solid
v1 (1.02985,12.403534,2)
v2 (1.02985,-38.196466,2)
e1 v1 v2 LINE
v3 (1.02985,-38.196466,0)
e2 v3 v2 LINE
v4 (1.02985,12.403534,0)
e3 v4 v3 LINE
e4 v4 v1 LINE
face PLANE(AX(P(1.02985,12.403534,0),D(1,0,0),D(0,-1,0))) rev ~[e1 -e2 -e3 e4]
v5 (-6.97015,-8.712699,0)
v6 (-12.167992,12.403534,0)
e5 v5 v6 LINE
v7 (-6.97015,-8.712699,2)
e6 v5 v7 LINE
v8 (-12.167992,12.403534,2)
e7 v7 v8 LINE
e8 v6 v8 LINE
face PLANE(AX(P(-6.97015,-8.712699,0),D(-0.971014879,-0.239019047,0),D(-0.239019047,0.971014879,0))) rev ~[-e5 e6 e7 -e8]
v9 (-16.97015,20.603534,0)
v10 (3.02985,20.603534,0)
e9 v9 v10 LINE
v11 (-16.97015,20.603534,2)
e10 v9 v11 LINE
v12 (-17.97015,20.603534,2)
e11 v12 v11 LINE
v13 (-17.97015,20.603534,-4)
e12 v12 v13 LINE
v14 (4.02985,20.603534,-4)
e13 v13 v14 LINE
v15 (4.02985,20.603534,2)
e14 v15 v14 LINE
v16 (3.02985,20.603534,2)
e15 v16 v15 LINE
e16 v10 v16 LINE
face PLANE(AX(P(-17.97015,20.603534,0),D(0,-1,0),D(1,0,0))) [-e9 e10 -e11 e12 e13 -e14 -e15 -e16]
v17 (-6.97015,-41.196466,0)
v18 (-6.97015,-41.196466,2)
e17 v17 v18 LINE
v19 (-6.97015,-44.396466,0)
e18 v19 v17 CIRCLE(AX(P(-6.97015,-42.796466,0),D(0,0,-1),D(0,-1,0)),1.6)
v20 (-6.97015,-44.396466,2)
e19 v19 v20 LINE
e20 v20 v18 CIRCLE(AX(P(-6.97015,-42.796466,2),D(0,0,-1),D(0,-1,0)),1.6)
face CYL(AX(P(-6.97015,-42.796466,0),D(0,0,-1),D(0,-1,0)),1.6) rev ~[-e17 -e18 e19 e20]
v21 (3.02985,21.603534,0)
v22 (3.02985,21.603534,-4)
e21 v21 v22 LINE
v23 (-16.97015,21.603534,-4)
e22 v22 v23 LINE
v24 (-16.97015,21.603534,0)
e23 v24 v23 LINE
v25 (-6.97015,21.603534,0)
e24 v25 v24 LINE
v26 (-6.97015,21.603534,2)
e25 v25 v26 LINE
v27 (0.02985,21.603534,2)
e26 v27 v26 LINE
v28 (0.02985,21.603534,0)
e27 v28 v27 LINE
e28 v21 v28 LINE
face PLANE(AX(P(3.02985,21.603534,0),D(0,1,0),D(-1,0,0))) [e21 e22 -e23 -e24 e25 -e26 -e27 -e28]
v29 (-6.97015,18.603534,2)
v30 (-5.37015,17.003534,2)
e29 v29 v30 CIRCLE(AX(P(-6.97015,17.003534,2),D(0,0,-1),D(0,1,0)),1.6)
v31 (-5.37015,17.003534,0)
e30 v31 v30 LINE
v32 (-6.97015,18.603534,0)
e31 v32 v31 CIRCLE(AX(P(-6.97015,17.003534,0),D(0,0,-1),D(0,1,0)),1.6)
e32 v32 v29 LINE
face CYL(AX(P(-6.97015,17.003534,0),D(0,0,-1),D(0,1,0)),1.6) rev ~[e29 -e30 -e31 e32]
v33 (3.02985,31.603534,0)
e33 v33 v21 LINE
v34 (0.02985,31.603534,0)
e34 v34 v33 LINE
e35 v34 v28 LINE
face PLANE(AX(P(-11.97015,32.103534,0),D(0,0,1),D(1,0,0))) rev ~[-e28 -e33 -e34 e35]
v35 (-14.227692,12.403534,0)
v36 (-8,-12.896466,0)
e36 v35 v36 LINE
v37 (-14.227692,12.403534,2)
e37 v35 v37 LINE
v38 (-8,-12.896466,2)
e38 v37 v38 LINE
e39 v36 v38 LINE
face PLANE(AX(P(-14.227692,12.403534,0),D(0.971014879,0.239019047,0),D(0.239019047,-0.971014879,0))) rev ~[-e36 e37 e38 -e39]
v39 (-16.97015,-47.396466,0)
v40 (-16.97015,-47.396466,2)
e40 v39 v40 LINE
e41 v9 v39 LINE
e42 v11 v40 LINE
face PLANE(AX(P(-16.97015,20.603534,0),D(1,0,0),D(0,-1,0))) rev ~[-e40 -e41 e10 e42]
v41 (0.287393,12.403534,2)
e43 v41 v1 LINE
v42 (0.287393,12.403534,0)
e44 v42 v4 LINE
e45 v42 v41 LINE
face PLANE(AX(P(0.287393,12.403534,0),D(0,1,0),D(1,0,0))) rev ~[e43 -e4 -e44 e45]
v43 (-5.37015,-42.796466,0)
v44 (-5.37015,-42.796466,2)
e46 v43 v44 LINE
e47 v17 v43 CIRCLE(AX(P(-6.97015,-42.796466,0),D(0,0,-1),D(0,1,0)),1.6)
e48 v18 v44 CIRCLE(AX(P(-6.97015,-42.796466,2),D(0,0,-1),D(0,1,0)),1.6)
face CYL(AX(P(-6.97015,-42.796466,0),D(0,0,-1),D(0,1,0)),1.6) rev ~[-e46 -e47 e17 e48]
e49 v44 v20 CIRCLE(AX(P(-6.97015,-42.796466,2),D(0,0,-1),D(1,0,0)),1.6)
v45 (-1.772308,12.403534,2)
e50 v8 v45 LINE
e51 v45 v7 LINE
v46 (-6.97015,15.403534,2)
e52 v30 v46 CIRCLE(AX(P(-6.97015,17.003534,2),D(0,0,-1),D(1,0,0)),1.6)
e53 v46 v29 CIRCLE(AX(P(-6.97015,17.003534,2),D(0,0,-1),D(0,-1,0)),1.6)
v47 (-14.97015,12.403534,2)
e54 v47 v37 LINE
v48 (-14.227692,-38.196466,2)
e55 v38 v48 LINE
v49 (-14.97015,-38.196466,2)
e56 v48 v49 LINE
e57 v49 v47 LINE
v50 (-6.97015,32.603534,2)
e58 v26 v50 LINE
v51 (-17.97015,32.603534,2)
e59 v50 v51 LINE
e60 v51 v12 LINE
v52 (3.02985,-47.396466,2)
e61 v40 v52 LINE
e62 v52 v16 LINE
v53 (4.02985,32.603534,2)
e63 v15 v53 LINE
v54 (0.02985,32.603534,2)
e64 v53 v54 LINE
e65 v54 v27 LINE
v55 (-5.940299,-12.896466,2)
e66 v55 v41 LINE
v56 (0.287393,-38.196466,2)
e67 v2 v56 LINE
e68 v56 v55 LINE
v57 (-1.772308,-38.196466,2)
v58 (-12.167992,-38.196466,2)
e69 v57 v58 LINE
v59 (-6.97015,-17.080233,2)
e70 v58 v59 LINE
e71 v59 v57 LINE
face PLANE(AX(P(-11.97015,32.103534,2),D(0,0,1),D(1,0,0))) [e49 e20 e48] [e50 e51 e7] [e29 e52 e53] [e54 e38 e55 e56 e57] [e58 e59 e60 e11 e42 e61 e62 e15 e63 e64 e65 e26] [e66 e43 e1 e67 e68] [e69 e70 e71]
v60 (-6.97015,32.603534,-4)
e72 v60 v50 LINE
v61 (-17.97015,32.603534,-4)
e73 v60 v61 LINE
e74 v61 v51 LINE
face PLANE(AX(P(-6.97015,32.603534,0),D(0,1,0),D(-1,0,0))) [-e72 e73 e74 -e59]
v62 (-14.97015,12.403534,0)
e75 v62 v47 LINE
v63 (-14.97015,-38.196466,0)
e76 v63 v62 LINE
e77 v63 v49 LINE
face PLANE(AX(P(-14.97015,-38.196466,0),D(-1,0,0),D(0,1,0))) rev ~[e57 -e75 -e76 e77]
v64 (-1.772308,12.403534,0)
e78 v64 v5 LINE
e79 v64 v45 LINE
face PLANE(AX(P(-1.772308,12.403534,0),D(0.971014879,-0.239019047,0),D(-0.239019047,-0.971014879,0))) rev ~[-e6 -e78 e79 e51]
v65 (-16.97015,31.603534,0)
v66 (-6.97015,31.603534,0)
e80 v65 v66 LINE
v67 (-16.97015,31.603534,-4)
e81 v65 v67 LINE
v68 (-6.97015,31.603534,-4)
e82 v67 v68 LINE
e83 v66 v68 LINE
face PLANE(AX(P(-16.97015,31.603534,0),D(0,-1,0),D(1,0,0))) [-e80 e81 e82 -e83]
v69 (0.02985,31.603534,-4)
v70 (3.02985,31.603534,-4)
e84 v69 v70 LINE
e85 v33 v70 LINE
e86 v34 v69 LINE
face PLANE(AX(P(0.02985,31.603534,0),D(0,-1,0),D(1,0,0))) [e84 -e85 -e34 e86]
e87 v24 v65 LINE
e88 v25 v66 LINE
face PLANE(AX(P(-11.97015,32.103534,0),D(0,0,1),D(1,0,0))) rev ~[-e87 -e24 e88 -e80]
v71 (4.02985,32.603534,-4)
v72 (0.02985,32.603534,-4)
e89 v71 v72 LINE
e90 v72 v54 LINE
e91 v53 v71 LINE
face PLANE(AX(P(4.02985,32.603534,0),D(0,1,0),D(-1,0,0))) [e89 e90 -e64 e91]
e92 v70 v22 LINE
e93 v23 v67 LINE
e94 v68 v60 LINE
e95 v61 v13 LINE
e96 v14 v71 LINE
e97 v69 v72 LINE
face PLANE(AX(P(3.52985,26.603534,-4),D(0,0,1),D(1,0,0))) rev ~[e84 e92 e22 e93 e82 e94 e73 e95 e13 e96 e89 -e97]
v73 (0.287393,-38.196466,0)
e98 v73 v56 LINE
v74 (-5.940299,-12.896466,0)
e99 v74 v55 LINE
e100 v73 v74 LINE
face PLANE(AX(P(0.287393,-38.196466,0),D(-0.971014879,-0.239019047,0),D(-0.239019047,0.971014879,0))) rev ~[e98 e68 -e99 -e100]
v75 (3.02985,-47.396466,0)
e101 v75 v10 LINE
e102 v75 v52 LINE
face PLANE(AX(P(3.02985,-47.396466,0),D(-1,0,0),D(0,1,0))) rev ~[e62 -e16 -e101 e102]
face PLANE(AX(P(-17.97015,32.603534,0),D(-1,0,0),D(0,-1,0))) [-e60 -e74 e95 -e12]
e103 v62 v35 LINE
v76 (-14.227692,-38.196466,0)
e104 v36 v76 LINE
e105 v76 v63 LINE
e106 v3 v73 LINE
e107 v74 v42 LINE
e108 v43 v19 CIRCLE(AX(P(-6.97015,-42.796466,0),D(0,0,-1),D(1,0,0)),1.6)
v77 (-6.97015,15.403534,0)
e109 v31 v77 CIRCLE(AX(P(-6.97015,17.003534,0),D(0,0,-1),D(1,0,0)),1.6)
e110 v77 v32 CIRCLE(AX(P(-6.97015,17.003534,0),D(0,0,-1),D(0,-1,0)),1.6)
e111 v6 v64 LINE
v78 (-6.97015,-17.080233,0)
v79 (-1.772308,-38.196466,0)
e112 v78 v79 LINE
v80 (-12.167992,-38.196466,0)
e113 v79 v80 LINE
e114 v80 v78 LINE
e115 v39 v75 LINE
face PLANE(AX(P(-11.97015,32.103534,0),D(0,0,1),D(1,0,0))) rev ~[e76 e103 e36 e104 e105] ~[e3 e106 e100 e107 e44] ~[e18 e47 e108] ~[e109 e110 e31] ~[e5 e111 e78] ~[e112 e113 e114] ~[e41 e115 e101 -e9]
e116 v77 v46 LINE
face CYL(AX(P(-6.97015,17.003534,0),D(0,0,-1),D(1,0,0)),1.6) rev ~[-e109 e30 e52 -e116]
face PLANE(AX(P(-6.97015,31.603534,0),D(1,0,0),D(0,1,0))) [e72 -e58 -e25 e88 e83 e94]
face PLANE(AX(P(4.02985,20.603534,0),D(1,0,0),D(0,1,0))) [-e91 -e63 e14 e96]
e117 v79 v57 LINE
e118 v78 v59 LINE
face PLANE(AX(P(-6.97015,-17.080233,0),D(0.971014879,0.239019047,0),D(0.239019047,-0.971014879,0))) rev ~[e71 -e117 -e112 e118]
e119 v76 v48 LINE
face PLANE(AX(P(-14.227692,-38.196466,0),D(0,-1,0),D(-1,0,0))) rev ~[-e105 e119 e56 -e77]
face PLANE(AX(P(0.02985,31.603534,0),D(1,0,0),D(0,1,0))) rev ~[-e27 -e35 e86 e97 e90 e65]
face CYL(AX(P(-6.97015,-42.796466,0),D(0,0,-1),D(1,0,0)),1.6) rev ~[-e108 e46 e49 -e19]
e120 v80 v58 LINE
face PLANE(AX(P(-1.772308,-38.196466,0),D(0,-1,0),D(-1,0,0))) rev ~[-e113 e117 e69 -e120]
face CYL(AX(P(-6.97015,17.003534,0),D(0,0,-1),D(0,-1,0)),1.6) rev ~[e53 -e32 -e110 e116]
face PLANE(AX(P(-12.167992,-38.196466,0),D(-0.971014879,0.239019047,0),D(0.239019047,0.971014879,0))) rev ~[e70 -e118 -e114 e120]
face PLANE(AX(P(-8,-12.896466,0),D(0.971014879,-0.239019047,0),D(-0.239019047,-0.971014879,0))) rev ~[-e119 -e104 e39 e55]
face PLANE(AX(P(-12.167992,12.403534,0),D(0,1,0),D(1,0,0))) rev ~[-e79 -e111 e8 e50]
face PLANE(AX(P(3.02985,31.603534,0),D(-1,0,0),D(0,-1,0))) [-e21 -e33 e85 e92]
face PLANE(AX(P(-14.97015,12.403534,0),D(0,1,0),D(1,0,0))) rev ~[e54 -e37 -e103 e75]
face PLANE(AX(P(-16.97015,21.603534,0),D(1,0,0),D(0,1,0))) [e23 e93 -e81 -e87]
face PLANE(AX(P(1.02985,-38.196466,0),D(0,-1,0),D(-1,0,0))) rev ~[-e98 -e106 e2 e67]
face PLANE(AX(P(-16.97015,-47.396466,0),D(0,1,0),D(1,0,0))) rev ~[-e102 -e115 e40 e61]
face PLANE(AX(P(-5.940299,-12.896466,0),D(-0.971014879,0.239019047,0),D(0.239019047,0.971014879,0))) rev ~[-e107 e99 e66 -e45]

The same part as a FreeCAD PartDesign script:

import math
import FreeCAD as App
import Part
import Sketcher
from FreeCAD import Vector
Q = App.Units.Quantity


def add_polygon(sketch, points):
    """Adds a closed chain of lines whose ends are joined by coincident constraints."""
    first, n = sketch.GeometryCount, len(points)
    for a, b in zip(points, points[1:] + points[:1]):
        sketch.addGeometry(Part.LineSegment(App.Vector(*a, 0), App.Vector(*b, 0)), False)
    for i in range(n):
        sketch.addConstraint(Sketcher.Constraint("Coincident", first + i, 2, first + (i + 1) % n, 1))

doc = App.newDocument("Part")
body = doc.addObject("PartDesign::Body", "Body")

# Sketch on XY plane
sketch1 = doc.addObject("Sketcher::SketchObject", "Sketch")
body.addObject(sketch1)
sketch1.AttachmentSupport = (doc.XY_Plane, [""])
sketch1.MapMode = "FlatFace"
add_polygon(sketch1, [(-7, 32.6), (-18, 32.6), (-18, 20.6), (-17, 20.6), (-17, -47.4), (3, -47.4), (3, 20.6), (4, 20.6), (4, 32.6), (0, 32.6), (0, 21.6), (-7, 21.6)])  # lines 0-11
add_polygon(sketch1, [(-8, -12.9), (-14.2, -38.2), (-15, -38.2), (-15, 12.4), (-14.2, 12.4)])  # lines 12-16
add_polygon(sketch1, [(-12.2, -38.2), (-7, -17.1), (-1.8, -38.2)])  # lines 17-19
sketch1.addGeometry(Part.ArcOfCircle(Part.Circle(Vector(-7, -42.8, 0), Vector(0, 0, 1), 1.6), math.radians(0), math.radians(90)), False)  # 20
sketch1.addGeometry(Part.ArcOfCircle(Part.Circle(Vector(-7, -42.8, 0), Vector(0, 0, 1), 1.6), math.radians(-90), math.radians(0)), False)  # 21
sketch1.addGeometry(Part.ArcOfCircle(Part.Circle(Vector(-7, -42.8, 0), Vector(0, 0, 1), 1.6), math.radians(90), math.radians(270)), False)  # 22
add_polygon(sketch1, [(-5.9, -12.9), (0.3, 12.4), (1, 12.4), (1, -38.2), (0.3, -38.2)])  # lines 23-27
add_polygon(sketch1, [(-7, -8.7), (-12.2, 12.4), (-1.8, 12.4)])  # lines 28-30
sketch1.addGeometry(Part.ArcOfCircle(Part.Circle(Vector(-7, 17, 0), Vector(0, 0, 1), 1.6), math.radians(-90), math.radians(0)), False)  # 31
sketch1.addGeometry(Part.ArcOfCircle(Part.Circle(Vector(-7, 17, 0), Vector(0, 0, 1), 1.6), math.radians(90), math.radians(270)), False)  # 32
sketch1.addGeometry(Part.ArcOfCircle(Part.Circle(Vector(-7, 17, 0), Vector(0, 0, 1), 1.6), math.radians(0), math.radians(90)), False)  # 33
sketch1.addConstraint([
    Sketcher.Constraint("Tangent", 20, 1, 21, 2),
    Sketcher.Constraint("Tangent", 21, 1, 22, 2),
    Sketcher.Constraint("Tangent", 22, 1, 20, 2),
    Sketcher.Constraint("Tangent", 31, 1, 32, 2),
    Sketcher.Constraint("Tangent", 32, 1, 33, 2),
    Sketcher.Constraint("Tangent", 33, 1, 31, 2),
    Sketcher.Constraint("Horizontal", 0),
    Sketcher.Constraint("Vertical", 1),
    Sketcher.Constraint("Horizontal", 2),
    Sketcher.Constraint("Vertical", 3),
    Sketcher.Constraint("Horizontal", 4),
    Sketcher.Constraint("Vertical", 5),
    Sketcher.Constraint("Horizontal", 6),
    Sketcher.Constraint("Vertical", 7),
    Sketcher.Constraint("Horizontal", 8),
    Sketcher.Constraint("Vertical", 9),
    Sketcher.Constraint("Horizontal", 10),
    Sketcher.Constraint("Vertical", 11),
    Sketcher.Constraint("Horizontal", 13),
    Sketcher.Constraint("Vertical", 14),
    Sketcher.Constraint("Horizontal", 15),
    Sketcher.Constraint("Horizontal", 19),
    Sketcher.Constraint("Horizontal", 24),
    Sketcher.Constraint("Vertical", 25),
    Sketcher.Constraint("Horizontal", 26),
    Sketcher.Constraint("Horizontal", 29),
    Sketcher.Constraint("Equal", 22, 31),
    Sketcher.Constraint("Parallel", 12, 17),
    Sketcher.Constraint("Parallel", 16, 18),
    Sketcher.Constraint("Parallel", 17, 23),
    Sketcher.Constraint("Parallel", 18, 27),
    Sketcher.Constraint("Parallel", 27, 28),
    Sketcher.Constraint("Parallel", 23, 30),
    Sketcher.Constraint("Horizontal", 2, 2, 5, 2),
    Sketcher.Constraint("Horizontal", 0, 2, 7, 2),
    Sketcher.Constraint("Horizontal", 13, 2, 18, 2),
    Sketcher.Constraint("Horizontal", 22, 3, 20, 1),
    Sketcher.Constraint("Horizontal", 15, 2, 23, 2),
    Sketcher.Constraint("Horizontal", 19, 2, 25, 2),
    Sketcher.Constraint("Horizontal", 16, 2, 27, 2),
    Sketcher.Constraint("Horizontal", 24, 2, 28, 2),
    Sketcher.Constraint("Horizontal", 32, 3, 33, 1),
    Sketcher.Constraint("Vertical", 22, 3, 31, 3),
    Sketcher.Constraint("Vertical", 33, 3, 10, 2),
    Sketcher.Constraint("Vertical", 12, 2, 15, 2),
    Sketcher.Constraint("Vertical", 11, 2, 17, 2),
    Sketcher.Constraint("Vertical", 17, 2, 21, 1),
    Sketcher.Constraint("Vertical", 21, 1, 22, 1),
    Sketcher.Constraint("Vertical", 23, 2, 26, 2),
    Sketcher.Constraint("Vertical", 19, 2, 28, 2),
    Sketcher.Constraint("Vertical", 18, 2, 29, 2),
    Sketcher.Constraint("Vertical", 30, 2, 31, 1),
    Sketcher.Constraint("Vertical", 31, 1, 32, 1),
    Sketcher.Constraint("Equal", 2, 6),
    Sketcher.Constraint("Equal", 15, 24),
    Sketcher.Constraint("Equal", 0, 9),
    Sketcher.Constraint("Radius", 20, Q("1.6 mm")),
    Sketcher.Constraint("DistanceX", 0, 2, 0, 1, Q("11 mm")),
    Sketcher.Constraint("DistanceX", 2, 1, 2, 2, Q("1 mm")),
    Sketcher.Constraint("DistanceX", 4, 1, 4, 2, Q("20 mm")),
    Sketcher.Constraint("DistanceX", 8, 2, 8, 1, Q("4 mm")),
    Sketcher.Constraint("DistanceY", 1, 2, 1, 1, Q("12 mm")),
    Sketcher.Constraint("DistanceY", 3, 2, 3, 1, Q("68 mm")),
    Sketcher.Constraint("DistanceY", 14, 1, 14, 2, Q("50.6 mm")),
    Sketcher.Constraint("DistanceX", 16, 2, -1, 1, Q("8 mm")),
    Sketcher.Constraint("DistanceX", 13, 2, 20, 3, Q("8 mm")),
    Sketcher.Constraint("DistanceX", 24, 2, 5, 2, Q("2 mm")),
    Sketcher.Constraint("DistanceY", 22, 1, 25, 2, Q("3 mm")),
    Sketcher.Constraint("DistanceY", 28, 2, 31, 1, Q("3 mm")),
    Sketcher.Constraint("DistanceY", 32, 1, 10, 2, Q("3 mm")),
    Sketcher.Constraint("DistanceX", 27, 2, -1, 1, Q("5.940299 mm")),
    Sketcher.Constraint("DistanceY", 30, 2, -1, 1, Q("8.712699 mm")),
    Sketcher.Constraint("DistanceX", 12, 2, 19, 2, Q("2.059701 mm")),
    Sketcher.Constraint("Distance", 17, Q("21.74656 mm")),
])
pad1 = doc.addObject("PartDesign::Pad", "Pad")
body.addObject(pad1)
pad1.Profile = sketch1
pad1.Length = 2

# Sketch on XY plane
sketch2 = doc.addObject("Sketcher::SketchObject", "Sketch001")
body.addObject(sketch2)
sketch2.AttachmentSupport = (doc.XY_Plane, [""])
sketch2.MapMode = "FlatFace"
add_polygon(sketch2, [(4, 32.6), (0, 32.6), (0, 31.6), (3, 31.6), (3, 21.6), (-17, 21.6), (-17, 31.6), (-7, 31.6), (-7, 32.6), (-18, 32.6), (-18, 20.6), (4, 20.6)])  # lines 0-11
sketch2.addConstraint([
    Sketcher.Constraint("Horizontal", 0),
    Sketcher.Constraint("Vertical", 1),
    Sketcher.Constraint("Horizontal", 2),
    Sketcher.Constraint("Vertical", 3),
    Sketcher.Constraint("Horizontal", 4),
    Sketcher.Constraint("Vertical", 5),
    Sketcher.Constraint("Horizontal", 6),
    Sketcher.Constraint("Vertical", 7),
    Sketcher.Constraint("Horizontal", 8),
    Sketcher.Constraint("Vertical", 9),
    Sketcher.Constraint("Horizontal", 10),
    Sketcher.Constraint("Vertical", 11),
    Sketcher.Constraint("Horizontal", 2, 2, 5, 2),
    Sketcher.Constraint("Horizontal", 0, 2, 7, 2),
    Sketcher.Constraint("Equal", 6, 3),
    Sketcher.Constraint("DistanceX", 0, 2, 0, 1, Q("4 mm")),
    Sketcher.Constraint("DistanceX", 2, 1, 2, 2, Q("3 mm")),
    Sketcher.Constraint("DistanceX", 4, 2, 4, 1, Q("20 mm")),
    Sketcher.Constraint("DistanceX", 6, 1, 6, 2, Q("10 mm")),
    Sketcher.Constraint("DistanceX", 8, 2, 8, 1, Q("11 mm")),
    Sketcher.Constraint("DistanceY", 1, 2, 1, 1, Q("1 mm")),
    Sketcher.Constraint("DistanceY", 9, 2, 9, 1, Q("12 mm")),
    Sketcher.Constraint("DistanceX", -1, 1, 0, 2, Q("0.02985 mm")),
    Sketcher.Constraint("DistanceY", -1, 1, 0, 2, Q("32.603534 mm")),
])
pad2 = doc.addObject("PartDesign::Pad", "Pad001")
body.addObject(pad2)
pad2.Profile = sketch2
pad2.Length = 4
pad2.Reversed = True

doc.recompute()
